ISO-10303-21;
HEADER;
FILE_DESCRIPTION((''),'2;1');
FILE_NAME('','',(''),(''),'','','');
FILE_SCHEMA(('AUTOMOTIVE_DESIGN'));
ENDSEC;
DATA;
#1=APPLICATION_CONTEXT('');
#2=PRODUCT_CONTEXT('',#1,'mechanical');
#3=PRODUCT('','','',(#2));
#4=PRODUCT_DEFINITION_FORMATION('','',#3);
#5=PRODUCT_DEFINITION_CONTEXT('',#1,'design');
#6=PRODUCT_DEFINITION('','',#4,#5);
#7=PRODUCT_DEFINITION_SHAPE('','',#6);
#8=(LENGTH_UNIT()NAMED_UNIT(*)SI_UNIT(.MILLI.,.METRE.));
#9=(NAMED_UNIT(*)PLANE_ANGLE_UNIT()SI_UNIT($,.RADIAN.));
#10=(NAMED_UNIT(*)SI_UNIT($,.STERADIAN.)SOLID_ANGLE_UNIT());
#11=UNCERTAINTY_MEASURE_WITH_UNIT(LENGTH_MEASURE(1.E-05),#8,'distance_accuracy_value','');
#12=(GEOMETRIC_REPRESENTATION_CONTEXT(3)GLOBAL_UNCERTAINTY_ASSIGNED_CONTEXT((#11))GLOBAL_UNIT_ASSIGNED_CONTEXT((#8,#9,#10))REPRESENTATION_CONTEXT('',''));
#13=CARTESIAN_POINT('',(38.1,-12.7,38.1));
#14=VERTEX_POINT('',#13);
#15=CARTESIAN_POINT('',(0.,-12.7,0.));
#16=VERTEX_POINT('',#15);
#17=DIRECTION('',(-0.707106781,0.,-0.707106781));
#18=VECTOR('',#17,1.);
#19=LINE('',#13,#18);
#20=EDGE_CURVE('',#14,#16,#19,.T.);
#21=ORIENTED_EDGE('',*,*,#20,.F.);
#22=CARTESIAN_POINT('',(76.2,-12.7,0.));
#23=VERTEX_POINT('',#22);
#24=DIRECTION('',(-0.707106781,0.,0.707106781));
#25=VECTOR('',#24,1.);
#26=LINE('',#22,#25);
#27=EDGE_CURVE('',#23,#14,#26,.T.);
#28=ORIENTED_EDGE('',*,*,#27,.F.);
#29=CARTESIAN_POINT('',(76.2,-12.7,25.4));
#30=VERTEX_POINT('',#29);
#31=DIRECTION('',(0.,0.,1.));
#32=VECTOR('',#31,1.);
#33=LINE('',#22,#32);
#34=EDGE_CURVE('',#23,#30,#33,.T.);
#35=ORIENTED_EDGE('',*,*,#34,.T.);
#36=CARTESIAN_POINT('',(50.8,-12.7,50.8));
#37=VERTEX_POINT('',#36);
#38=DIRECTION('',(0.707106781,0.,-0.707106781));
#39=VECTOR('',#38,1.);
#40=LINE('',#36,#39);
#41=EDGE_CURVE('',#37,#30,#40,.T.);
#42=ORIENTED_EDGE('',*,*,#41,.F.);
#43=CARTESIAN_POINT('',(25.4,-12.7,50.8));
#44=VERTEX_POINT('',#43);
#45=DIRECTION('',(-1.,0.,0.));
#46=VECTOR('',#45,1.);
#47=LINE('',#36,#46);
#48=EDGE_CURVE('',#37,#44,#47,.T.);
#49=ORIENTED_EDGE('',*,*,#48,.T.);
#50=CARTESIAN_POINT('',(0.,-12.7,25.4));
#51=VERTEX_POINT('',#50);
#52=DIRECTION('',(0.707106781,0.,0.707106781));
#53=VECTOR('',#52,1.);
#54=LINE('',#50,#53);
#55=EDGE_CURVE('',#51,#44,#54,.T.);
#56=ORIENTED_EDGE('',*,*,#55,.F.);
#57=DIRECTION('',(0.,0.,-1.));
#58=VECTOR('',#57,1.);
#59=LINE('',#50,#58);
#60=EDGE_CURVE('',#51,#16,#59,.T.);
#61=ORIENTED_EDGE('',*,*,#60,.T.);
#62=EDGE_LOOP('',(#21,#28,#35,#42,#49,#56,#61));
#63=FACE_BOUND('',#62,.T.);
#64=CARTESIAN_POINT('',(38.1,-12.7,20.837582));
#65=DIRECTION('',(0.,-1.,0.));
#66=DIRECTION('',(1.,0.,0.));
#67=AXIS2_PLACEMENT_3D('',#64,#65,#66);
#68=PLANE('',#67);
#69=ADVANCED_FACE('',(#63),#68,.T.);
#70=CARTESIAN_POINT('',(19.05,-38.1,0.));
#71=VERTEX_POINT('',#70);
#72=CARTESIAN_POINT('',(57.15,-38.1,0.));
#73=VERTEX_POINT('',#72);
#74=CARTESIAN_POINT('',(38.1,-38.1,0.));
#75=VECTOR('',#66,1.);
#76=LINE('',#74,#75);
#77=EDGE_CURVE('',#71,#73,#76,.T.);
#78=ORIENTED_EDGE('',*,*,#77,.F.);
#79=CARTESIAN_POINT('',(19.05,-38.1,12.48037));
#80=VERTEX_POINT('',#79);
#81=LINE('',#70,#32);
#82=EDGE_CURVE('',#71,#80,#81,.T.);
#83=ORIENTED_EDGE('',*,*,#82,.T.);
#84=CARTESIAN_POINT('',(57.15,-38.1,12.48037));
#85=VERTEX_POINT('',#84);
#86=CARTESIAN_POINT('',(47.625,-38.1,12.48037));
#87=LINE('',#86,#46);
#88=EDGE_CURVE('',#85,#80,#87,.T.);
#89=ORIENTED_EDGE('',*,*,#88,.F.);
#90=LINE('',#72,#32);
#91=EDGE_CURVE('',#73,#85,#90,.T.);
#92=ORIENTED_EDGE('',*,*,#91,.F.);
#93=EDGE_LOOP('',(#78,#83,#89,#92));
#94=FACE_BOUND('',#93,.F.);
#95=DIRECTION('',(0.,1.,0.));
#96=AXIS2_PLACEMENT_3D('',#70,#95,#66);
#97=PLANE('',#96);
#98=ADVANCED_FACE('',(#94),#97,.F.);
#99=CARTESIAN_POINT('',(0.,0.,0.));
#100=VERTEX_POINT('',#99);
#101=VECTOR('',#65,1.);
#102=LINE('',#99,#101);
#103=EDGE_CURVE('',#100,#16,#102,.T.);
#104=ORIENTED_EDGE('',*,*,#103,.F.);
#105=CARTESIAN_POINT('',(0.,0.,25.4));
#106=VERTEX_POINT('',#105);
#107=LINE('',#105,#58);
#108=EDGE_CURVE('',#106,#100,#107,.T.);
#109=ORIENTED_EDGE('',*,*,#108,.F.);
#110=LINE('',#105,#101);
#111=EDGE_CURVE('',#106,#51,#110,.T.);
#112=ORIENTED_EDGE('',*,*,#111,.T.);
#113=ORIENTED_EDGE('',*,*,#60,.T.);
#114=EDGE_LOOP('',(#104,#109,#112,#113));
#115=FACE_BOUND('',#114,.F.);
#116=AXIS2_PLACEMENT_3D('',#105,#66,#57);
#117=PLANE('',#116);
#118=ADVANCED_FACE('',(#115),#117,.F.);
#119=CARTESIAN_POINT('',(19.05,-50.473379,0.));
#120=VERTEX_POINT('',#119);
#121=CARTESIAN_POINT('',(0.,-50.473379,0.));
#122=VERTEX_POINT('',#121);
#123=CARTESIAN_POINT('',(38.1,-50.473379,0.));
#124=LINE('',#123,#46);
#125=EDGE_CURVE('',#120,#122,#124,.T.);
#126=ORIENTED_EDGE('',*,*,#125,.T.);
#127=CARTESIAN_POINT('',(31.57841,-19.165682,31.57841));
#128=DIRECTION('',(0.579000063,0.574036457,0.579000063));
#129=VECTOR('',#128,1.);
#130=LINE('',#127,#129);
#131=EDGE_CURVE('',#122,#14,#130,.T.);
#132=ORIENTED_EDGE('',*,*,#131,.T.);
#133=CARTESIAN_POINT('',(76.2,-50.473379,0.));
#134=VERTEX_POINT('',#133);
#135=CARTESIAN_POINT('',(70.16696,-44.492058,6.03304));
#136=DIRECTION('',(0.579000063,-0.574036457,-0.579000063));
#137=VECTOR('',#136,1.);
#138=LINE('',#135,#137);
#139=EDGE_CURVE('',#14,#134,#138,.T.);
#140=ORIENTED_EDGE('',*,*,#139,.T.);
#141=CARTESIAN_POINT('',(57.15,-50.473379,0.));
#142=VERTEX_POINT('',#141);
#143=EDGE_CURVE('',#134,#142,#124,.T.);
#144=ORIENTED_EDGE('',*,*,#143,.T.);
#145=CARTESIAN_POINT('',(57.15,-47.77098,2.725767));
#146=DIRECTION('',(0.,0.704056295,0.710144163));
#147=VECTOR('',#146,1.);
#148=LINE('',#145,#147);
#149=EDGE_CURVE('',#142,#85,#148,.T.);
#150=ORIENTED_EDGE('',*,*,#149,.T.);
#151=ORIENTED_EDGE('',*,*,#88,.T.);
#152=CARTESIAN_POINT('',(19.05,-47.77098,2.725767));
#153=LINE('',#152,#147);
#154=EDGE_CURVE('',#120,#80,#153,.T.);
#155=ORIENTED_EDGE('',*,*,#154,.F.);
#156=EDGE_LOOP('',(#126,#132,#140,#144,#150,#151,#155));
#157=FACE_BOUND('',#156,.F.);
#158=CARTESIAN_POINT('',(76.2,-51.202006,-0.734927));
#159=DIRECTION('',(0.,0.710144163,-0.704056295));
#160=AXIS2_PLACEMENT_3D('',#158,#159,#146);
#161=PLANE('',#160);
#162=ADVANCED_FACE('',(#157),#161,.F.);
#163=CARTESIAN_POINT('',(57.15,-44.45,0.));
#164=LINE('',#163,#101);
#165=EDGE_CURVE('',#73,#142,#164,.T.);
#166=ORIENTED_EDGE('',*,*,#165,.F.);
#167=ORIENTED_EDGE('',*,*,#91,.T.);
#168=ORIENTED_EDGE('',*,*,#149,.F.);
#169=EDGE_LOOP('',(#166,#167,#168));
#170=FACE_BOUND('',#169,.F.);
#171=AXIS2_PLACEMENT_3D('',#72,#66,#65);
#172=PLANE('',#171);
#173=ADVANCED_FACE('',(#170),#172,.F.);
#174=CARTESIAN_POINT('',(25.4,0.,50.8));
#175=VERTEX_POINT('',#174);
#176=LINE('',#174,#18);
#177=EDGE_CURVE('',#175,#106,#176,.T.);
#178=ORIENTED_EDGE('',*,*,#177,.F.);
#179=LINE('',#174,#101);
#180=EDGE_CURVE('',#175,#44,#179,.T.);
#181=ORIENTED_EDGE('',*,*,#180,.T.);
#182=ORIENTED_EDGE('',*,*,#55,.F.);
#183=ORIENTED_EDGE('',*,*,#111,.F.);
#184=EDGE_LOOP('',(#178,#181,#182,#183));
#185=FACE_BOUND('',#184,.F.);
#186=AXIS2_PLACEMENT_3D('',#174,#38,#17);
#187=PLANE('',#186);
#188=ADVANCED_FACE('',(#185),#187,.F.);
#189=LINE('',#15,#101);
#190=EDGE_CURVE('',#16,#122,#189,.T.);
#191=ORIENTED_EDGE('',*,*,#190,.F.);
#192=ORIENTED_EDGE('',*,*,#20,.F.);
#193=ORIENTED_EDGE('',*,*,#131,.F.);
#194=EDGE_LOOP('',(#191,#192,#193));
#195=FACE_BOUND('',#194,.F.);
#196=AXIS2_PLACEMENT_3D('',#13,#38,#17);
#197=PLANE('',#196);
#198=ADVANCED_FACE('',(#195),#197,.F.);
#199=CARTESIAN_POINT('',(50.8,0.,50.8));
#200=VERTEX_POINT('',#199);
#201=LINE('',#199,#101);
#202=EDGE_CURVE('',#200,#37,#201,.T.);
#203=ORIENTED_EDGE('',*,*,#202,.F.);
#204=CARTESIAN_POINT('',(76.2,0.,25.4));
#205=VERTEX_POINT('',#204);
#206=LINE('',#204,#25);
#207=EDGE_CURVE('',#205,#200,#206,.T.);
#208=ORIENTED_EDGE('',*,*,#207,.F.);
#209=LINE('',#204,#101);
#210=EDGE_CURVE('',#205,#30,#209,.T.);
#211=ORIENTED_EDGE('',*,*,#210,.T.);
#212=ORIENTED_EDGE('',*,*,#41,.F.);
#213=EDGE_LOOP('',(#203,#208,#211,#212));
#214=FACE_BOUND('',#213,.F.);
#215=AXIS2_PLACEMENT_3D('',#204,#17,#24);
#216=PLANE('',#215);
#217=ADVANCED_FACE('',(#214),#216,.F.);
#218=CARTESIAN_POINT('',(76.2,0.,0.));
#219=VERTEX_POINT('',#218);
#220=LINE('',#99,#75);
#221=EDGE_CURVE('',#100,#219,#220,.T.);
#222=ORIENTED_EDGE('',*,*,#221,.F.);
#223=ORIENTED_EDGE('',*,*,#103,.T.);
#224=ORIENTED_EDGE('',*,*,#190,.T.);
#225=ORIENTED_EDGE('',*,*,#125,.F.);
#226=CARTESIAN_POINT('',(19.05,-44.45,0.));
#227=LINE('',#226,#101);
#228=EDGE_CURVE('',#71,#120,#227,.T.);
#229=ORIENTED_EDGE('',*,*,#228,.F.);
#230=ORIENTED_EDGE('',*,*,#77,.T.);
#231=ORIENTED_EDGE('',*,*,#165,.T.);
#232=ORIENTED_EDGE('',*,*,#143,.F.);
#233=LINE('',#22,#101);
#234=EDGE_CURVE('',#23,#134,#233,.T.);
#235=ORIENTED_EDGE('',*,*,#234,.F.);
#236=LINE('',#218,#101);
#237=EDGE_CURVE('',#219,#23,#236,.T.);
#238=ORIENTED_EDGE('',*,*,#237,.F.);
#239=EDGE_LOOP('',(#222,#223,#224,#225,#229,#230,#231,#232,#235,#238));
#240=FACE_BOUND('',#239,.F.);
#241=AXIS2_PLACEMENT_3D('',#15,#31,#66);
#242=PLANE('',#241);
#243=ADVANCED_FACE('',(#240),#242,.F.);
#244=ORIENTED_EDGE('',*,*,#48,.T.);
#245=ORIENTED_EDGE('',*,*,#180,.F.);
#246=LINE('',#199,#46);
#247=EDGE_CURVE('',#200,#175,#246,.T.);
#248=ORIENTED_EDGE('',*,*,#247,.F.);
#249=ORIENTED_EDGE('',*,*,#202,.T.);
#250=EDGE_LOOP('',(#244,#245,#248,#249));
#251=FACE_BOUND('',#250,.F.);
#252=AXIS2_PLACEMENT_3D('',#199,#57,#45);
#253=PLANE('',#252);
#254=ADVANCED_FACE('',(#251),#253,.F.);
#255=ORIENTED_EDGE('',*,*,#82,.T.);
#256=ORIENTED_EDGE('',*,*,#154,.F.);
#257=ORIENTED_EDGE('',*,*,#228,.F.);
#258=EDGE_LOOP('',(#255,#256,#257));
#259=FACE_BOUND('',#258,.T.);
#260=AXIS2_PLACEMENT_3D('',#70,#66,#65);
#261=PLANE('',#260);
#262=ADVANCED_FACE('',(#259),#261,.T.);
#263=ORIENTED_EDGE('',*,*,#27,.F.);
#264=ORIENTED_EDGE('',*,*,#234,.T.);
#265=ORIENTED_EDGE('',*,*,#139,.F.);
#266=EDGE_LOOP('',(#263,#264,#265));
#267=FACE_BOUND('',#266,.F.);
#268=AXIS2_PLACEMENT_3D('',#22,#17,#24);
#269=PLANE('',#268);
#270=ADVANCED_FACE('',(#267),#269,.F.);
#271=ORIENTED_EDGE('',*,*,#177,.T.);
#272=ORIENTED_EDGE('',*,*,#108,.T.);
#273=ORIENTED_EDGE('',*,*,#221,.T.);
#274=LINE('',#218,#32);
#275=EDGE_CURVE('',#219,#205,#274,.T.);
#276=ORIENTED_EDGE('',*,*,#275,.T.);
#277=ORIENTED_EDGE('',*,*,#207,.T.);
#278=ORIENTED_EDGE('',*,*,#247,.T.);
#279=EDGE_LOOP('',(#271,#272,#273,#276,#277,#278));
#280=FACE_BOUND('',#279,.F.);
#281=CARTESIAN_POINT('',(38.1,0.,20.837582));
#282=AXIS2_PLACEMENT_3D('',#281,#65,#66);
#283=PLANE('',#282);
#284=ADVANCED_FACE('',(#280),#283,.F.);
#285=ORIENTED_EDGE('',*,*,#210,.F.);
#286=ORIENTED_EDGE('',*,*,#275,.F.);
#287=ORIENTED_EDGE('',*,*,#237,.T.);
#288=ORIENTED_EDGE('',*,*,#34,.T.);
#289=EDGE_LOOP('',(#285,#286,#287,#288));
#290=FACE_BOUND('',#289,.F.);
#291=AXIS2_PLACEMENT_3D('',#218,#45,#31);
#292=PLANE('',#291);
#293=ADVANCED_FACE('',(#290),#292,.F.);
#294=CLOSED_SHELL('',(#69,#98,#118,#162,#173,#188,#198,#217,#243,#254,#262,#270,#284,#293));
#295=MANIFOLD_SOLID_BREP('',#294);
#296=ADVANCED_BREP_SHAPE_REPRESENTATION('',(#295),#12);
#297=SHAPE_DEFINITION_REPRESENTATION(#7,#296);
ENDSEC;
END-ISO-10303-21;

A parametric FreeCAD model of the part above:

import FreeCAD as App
import Part
import Sketcher
from FreeCAD import Vector
Q = App.Units.Quantity


def add_polygon(sketch, points):
    """Adds a closed chain of lines whose ends are joined by coincident constraints."""
    first, n = sketch.GeometryCount, len(points)
    for a, b in zip(points, points[1:] + points[:1]):
        sketch.addGeometry(Part.LineSegment(App.Vector(*a, 0), App.Vector(*b, 0)), False)
    for i in range(n):
        sketch.addConstraint(Sketcher.Constraint("Coincident", first + i, 2, first + (i + 1) % n, 1))

doc = App.newDocument("Part")
body = doc.addObject("PartDesign::Body", "Body")

sketch1 = body.newObject("Sketcher::SketchObject", "Sketch")
sketch1.AttachmentSupport = (doc.getObject("XZ_Plane"), [""])
sketch1.MapMode = "FlatFace"
add_polygon(sketch1, [(25, 51), (0, 25), (0, 0), (76, 0), (76, 25), (51, 51)])
sketch1.addConstraint([
    Sketcher.Constraint("Vertical", 1),
    Sketcher.Constraint("Horizontal", 2),
    Sketcher.Constraint("Vertical", 3),
    Sketcher.Constraint("Horizontal", 5),
    Sketcher.Constraint("Coincident", 1, 2, -1, 1),
    Sketcher.Constraint("Perpendicular", 0, 4),
    Sketcher.Constraint("Horizontal", 0, 2, 3, 2),
    Sketcher.Constraint("Equal", 5, 1),
    Sketcher.Constraint("Equal", 0, 4),
    Sketcher.Constraint("DistanceX", 2, 1, 2, 2, Q("3 in")),
    Sketcher.Constraint("DistanceX", 5, 2, 5, 1, Q("1 in")),
])
pad1 = body.newObject("PartDesign::Pad", "Pad")
pad1.Profile = sketch1
pad1.Length = Q("0.5 in")

sketch2 = body.newObject("Sketcher::SketchObject", "Sketch001")
sketch2.AttachmentSupport = (doc.getObject("XZ_Plane"), [""])
sketch2.MapMode = "FlatFace"
sketch2.AttachmentOffset = App.Placement(Vector(0, 0, 0.5 * 25.4), App.Rotation())
add_polygon(sketch2, [(0, 0), (76, 0), (38, 38)])
sketch2.addConstraint([
    Sketcher.Constraint("Horizontal", 0),
    Sketcher.Constraint("Coincident", 2, 2, -1, 1),
    Sketcher.Constraint("Perpendicular", 1, 2),
    Sketcher.Constraint("Equal", 1, 2),
    Sketcher.Constraint("DistanceX", 0, 1, 0, 2, Q("3 in")),
])
pad2 = body.newObject("PartDesign::Pad", "Pad001")
pad2.Profile = sketch2
pad2.Length = Q("1.5 in")

sketch3 = body.newObject("Sketcher::SketchObject", "Sketch002")
sketch3.AttachmentSupport = (doc.getObject("XY_Plane"), [""])
sketch3.MapMode = "FlatFace"
add_polygon(sketch3, [(19, -51), (19, -38), (57, -38), (57, -51)])
sketch3.addConstraint([
    Sketcher.Constraint("Vertical", 0),
    Sketcher.Constraint("Horizontal", 1),
    Sketcher.Constraint("Vertical", 2),
    Sketcher.Constraint("Horizontal", 3),
    Sketcher.Constraint("DistanceX", 1, 1, 1, 2, Q("1.5 in")),
    Sketcher.Constraint("DistanceY", 0, 1, 0, 2, Q("0.5 in")),
    Sketcher.Constraint("DistanceY", 2, 2, -1, 1, Q("2 in")),
    Sketcher.Constraint("DistanceX", -1, 1, 0, 2, Q("0.75 in")),
])
pocket1 = body.newObject("PartDesign::Pocket", "Pocket")
pocket1.Profile = sketch3
pocket1.Type = "ThroughAll"
pocket1.Reversed = True

sketch4 = body.newObject("Sketcher::SketchObject", "Sketch003")
sketch4.AttachmentSupport = (doc.getObject("YZ_Plane"), [""])
sketch4.MapMode = "FlatFace"
sketch4.AttachmentOffset = App.Placement(Vector(0, 0, 3 * 25.4), App.Rotation())
add_polygon(sketch4, [(-51, -1), (-13, 38), (-51, 38)])
sketch4.addConstraint([
    Sketcher.Constraint("Horizontal", 1),
    Sketcher.Constraint("Vertical", 2),
    Sketcher.Constraint("DistanceX", 0, 2, -1, 1, Q("0.5 in")),
    Sketcher.Constraint("DistanceY", -1, 1, 0, 2, Q("1.5 in")),
    Sketcher.Constraint("DistanceX", 1, 2, 1, 1, Q("38.502006 mm")),
    Sketcher.Constraint("DistanceY", 2, 2, 2, 1, Q("38.834927 mm")),
])
pocket2 = body.newObject("PartDesign::Pocket", "Pocket001")
pocket2.Profile = sketch4
pocket2.Type = "ThroughAll"

doc.recompute()
